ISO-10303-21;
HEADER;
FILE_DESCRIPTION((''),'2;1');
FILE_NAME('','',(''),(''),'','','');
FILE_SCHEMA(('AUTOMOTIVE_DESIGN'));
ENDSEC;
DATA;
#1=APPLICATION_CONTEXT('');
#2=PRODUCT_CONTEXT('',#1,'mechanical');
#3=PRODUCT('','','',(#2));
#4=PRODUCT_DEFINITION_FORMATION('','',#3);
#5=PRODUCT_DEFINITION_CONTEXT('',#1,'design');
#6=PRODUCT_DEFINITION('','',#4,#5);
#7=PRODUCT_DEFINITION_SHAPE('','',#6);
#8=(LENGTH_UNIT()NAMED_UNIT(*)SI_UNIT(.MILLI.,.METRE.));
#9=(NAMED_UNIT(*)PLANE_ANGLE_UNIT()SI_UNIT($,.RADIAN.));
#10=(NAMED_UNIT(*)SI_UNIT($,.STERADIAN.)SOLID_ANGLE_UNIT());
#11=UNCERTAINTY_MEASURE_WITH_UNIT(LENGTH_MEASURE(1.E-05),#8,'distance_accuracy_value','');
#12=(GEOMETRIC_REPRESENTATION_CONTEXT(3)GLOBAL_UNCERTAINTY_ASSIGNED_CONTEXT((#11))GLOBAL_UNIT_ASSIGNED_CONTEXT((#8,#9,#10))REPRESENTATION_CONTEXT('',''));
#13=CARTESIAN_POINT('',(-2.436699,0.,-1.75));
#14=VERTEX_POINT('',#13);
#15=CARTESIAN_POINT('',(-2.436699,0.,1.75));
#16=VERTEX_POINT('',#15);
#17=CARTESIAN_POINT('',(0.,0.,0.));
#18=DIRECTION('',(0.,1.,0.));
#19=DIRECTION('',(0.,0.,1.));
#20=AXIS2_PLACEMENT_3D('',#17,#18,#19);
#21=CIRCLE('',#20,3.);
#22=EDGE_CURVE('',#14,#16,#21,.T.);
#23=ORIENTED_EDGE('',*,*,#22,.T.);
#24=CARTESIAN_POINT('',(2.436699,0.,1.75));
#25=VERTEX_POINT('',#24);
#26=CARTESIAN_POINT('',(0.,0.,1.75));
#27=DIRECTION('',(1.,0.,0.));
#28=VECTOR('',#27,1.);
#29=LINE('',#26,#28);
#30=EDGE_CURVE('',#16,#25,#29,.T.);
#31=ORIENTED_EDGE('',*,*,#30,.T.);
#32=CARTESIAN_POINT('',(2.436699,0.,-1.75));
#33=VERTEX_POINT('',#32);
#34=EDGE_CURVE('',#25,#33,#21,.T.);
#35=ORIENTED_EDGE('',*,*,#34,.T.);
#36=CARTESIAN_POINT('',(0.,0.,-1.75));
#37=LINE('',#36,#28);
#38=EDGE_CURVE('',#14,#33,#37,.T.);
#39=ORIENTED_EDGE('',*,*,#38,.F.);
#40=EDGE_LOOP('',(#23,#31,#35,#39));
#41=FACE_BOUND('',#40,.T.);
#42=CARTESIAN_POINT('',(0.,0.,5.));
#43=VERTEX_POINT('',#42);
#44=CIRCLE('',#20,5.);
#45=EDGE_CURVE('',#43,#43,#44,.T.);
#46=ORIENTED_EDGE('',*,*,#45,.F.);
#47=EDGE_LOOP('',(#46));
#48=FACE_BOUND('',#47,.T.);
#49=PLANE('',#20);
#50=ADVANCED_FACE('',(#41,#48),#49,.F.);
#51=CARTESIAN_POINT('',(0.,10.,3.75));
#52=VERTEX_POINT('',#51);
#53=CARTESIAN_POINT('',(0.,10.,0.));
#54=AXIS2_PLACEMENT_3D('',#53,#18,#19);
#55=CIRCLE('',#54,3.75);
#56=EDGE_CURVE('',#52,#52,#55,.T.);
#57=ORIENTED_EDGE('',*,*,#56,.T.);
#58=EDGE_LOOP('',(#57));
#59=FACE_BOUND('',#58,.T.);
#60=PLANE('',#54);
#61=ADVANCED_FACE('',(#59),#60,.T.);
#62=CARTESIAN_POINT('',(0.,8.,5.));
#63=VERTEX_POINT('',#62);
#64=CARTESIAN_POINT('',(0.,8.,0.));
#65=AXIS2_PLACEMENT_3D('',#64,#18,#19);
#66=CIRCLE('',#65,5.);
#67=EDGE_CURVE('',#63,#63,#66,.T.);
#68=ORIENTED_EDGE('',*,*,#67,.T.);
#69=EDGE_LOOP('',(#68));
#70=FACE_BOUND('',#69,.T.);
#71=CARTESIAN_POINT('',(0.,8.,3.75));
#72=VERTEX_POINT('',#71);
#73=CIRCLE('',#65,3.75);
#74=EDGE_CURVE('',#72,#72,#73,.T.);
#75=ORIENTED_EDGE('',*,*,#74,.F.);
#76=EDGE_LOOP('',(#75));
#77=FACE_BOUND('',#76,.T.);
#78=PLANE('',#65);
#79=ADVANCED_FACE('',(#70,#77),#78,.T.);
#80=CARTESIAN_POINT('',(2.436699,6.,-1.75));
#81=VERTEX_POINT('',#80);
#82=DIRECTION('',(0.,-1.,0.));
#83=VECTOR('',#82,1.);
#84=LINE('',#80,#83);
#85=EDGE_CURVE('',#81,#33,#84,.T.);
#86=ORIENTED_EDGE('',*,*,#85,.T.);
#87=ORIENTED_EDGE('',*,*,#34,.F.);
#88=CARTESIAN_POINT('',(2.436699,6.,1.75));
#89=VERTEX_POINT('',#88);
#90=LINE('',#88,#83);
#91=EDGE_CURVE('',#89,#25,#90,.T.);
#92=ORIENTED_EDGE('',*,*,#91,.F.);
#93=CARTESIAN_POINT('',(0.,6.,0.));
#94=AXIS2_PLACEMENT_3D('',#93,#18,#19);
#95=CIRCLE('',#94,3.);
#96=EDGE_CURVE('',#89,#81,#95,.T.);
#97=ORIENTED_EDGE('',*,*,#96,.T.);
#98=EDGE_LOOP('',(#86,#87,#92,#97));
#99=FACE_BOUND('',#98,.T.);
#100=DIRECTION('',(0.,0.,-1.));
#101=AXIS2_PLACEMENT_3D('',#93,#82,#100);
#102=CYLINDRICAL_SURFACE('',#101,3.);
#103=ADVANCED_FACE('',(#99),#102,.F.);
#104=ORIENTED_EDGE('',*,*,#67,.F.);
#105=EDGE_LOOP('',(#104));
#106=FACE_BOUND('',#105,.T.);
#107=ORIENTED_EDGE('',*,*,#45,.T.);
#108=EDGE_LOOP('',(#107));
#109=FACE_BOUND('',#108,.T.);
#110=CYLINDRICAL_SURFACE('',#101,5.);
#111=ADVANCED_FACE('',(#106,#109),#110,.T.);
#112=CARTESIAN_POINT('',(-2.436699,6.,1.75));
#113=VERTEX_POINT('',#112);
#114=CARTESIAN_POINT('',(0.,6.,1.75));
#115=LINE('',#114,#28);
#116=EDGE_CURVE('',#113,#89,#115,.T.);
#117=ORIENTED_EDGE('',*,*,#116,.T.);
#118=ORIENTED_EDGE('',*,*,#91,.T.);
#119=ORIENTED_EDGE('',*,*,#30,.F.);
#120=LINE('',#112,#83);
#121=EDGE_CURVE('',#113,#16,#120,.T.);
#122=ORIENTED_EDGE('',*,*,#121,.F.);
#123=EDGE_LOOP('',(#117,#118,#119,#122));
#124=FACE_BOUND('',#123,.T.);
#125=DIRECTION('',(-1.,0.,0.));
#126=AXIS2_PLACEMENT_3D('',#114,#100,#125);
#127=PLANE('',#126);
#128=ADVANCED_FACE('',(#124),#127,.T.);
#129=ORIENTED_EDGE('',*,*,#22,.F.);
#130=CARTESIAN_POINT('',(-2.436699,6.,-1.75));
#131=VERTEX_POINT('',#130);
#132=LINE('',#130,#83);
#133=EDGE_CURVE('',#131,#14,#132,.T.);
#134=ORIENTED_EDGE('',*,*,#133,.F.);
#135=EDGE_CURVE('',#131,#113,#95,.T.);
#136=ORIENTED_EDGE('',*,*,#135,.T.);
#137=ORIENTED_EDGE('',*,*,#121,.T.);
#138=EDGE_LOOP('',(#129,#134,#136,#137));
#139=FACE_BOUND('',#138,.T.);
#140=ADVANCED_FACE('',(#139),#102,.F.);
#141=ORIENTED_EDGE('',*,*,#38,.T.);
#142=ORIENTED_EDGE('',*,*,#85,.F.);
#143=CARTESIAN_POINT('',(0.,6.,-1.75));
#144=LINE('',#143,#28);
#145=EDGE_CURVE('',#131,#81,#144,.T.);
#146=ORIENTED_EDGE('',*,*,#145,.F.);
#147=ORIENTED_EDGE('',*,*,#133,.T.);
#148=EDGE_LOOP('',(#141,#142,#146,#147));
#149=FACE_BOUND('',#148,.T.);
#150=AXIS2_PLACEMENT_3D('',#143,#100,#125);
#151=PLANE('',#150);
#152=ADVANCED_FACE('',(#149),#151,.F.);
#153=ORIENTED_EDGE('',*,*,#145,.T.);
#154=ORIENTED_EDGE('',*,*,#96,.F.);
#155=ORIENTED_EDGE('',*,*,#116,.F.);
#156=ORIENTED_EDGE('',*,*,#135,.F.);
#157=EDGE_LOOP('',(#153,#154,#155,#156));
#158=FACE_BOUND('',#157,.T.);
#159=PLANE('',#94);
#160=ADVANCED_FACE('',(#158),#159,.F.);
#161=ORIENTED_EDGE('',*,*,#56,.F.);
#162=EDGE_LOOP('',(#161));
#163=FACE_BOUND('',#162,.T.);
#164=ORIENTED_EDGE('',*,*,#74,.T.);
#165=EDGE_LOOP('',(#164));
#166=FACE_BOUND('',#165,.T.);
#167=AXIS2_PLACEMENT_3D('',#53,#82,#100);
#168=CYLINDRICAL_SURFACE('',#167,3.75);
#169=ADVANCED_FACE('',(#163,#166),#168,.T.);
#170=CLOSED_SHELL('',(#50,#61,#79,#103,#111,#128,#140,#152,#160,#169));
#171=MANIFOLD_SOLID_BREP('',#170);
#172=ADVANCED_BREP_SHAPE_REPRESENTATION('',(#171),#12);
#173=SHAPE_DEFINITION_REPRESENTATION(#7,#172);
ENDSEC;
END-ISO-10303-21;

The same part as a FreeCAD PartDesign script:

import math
import FreeCAD as App
import Part
import Sketcher

V = App.Vector

doc = App.newDocument("Part")
params = doc.addObject("Spreadsheet::Sheet", "Params")
for row, (alias, value) in enumerate([
    ("sketch1_diameter", "10 mm"),
    ("sketch1_radius", "3 mm"),
    ("pad1_length", "6 mm"),
    ("sketch2_diameter", "10 mm"),
    ("pad2_length", "2 mm"),
    ("sketch3_diameter", "7.5 mm"),
    ("pad3_length", "2 mm"),
], start=1):
    params.set(f"A{row}", alias)
    params.set(f"B{row}", "=" + value)
    params.setAlias(f"B{row}", alias)

body = doc.addObject("PartDesign::Body", "Body")

# Sketch on XZ plane
sketch1 = body.newObject("Sketcher::SketchObject", "Sketch")
sketch1.AttachmentSupport = (doc.getObject("XZ_Plane"), [""])
sketch1.MapMode = "FlatFace"
sketch1.addGeometry([
    Part.Circle(V(0, 0, 0), V(0, 0, 1), 5),  # 0
    Part.ArcOfCircle(Part.Circle(V(0, 0, 0), V(0, 0, 1), 3), math.radians(-36), math.radians(36)),  # 1
    Part.LineSegment(V(2.4, 1.8, 0), V(-2.4, 1.8, 0)),  # 2
    Part.ArcOfCircle(Part.Circle(V(0, 0, 0), V(0, 0, 1), 3), math.radians(144), math.radians(216)),  # 3
    Part.LineSegment(V(-2.4, -1.8, 0), V(2.4, -1.8, 0)),  # 4
], False)
sketch1.addConstraint([
    Sketcher.Constraint("Coincident", 1, 2, 2, 1),
    Sketcher.Constraint("Coincident", 2, 2, 3, 1),
    Sketcher.Constraint("Coincident", 3, 2, 4, 1),
    Sketcher.Constraint("Coincident", 4, 2, 1, 1),
    Sketcher.Constraint("Horizontal", 2),
    Sketcher.Constraint("Horizontal", 4),
    Sketcher.Constraint("Coincident", 0, 3, -1, 1),
    Sketcher.Constraint("Coincident", 1, 3, -1, 1),
    Sketcher.Constraint("Coincident", 3, 3, -1, 1),
    Sketcher.Constraint("Equal", 1, 3),
    Sketcher.Constraint("Vertical", 2, 2, 3, 2),
    Sketcher.Constraint("Diameter", 0, 10.0),
    Sketcher.Constraint("Radius", 1, 3.0),
    Sketcher.Constraint("DistanceY", 3, 2, 2, 2, 3.5),
])
sketch1.setExpression("Constraints[11]", "Params.sketch1_diameter")
sketch1.setExpression("Constraints[12]", "Params.sketch1_radius")
pad1 = body.newObject("PartDesign::Pad", "Pad")
pad1.Profile = sketch1
pad1.setExpression("Length", "Params.pad1_length")
pad1.Reversed = True

# Sketch on XZ plane
sketch2 = body.newObject("Sketcher::SketchObject", "Sketch001")
sketch2.AttachmentSupport = (doc.getObject("XZ_Plane"), [""])
sketch2.MapMode = "FlatFace"
sketch2.AttachmentOffset = App.Placement(V(0, 0, -6), App.Rotation())
sketch2.addGeometry(Part.Circle(V(0, 0, 0), V(0, 0, 1), 5), False)
sketch2.addConstraint([
    Sketcher.Constraint("Coincident", 0, 3, -1, 1),
    Sketcher.Constraint("Diameter", 0, 10.0),
])
sketch2.setExpression("Constraints[1]", "Params.sketch2_diameter")
pad2 = body.newObject("PartDesign::Pad", "Pad001")
pad2.Profile = sketch2
pad2.setExpression("Length", "Params.pad2_length")
pad2.Reversed = True

# Sketch on XZ plane
sketch3 = body.newObject("Sketcher::SketchObject", "Sketch002")
sketch3.AttachmentSupport = (doc.getObject("XZ_Plane"), [""])
sketch3.MapMode = "FlatFace"
sketch3.AttachmentOffset = App.Placement(V(0, 0, -8), App.Rotation())
sketch3.addGeometry(Part.Circle(V(0, 0, 0), V(0, 0, 1), 3.8), False)
sketch3.addConstraint([
    Sketcher.Constraint("Coincident", 0, 3, -1, 1),
    Sketcher.Constraint("Diameter", 0, 7.5),
])
sketch3.setExpression("Constraints[1]", "Params.sketch3_diameter")
pad3 = body.newObject("PartDesign::Pad", "Pad002")
pad3.Profile = sketch3
pad3.setExpression("Length", "Params.pad3_length")
pad3.Reversed = True

doc.recompute()
